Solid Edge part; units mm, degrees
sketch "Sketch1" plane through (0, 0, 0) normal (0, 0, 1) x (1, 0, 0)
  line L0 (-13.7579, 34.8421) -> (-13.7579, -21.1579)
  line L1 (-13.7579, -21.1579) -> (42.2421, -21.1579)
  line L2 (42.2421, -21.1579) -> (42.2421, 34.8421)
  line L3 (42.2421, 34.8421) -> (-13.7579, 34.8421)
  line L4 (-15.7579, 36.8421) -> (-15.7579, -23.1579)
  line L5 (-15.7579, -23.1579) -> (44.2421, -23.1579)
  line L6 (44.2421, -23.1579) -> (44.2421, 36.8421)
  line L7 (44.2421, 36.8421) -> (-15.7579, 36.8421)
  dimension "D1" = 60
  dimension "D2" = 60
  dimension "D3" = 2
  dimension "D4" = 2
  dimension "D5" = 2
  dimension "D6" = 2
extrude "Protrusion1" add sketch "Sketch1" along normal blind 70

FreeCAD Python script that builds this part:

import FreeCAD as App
import Part
import Sketcher

V = App.Vector
Q = App.Units.Quantity


def add_polygon(sketch, points):
    """Adds a closed chain of lines whose ends are joined by coincident constraints."""
    first, n = sketch.GeometryCount, len(points)
    for a, b in zip(points, points[1:] + points[:1]):
        sketch.addGeometry(Part.LineSegment(App.Vector(*a, 0), App.Vector(*b, 0)), False)
    for i in range(n):
        sketch.addConstraint(Sketcher.Constraint("Coincident", first + i, 2, first + (i + 1) % n, 1))

doc = App.newDocument("Part")
params = doc.addObject("Spreadsheet::Sheet", "Params")
for row, (alias, value) in enumerate([
    ("sketch1_width", "60 mm"),
    ("sketch1_width2", "56 mm"),
    ("pad1_length", "70 mm"),
], start=1):
    params.set(f"A{row}", alias)
    params.set(f"B{row}", "=" + value)
    params.setAlias(f"B{row}", alias)

body = doc.addObject("PartDesign::Body", "Body")

# Sketch on XY plane
sketch1 = body.newObject("Sketcher::SketchObject", "Sketch")
sketch1.AttachmentSupport = (doc.getObject("XY_Plane"), [""])
sketch1.MapMode = "FlatFace"
add_polygon(sketch1, [(44, 37), (-16, 37), (-16, -23), (44, -23)])  # lines 0-3
add_polygon(sketch1, [(-14, -21), (-14, 35), (42, 35), (42, -21)])  # lines 4-7
sketch1.addConstraint(Sketcher.Constraint("Horizontal", 0))
sketch1.addConstraint(Sketcher.Constraint("Vertical", 1))
sketch1.addConstraint(Sketcher.Constraint("Horizontal", 2))
sketch1.addConstraint(Sketcher.Constraint("Vertical", 3))
sketch1.addConstraint(Sketcher.Constraint("Vertical", 4))
sketch1.addConstraint(Sketcher.Constraint("Horizontal", 5))
sketch1.addConstraint(Sketcher.Constraint("Vertical", 6))
sketch1.addConstraint(Sketcher.Constraint("Horizontal", 7))
sketch1.addConstraint(Sketcher.Constraint("Equal", 2, 1))
sketch1.addConstraint(Sketcher.Constraint("Equal", 7, 4))
sketch1.addConstraint(Sketcher.Constraint("DistanceX", 0, 2, 0, 1, Q("60 mm")))
sketch1.addConstraint(Sketcher.Constraint("DistanceX", 5, 1, 5, 2, Q("56 mm")))
sketch1.addConstraint(Sketcher.Constraint("DistanceX", -1, 1, 2, 2, Q("44.242 mm")))
sketch1.addConstraint(Sketcher.Constraint("DistanceX", -1, 1, 5, 2, Q("42.242 mm")))
sketch1.addConstraint(Sketcher.Constraint("DistanceY", 4, 2, 0, 2, Q("2 mm")))
sketch1.addConstraint(Sketcher.Constraint("DistanceY", -1, 1, 0, 2, Q("36.842 mm")))
sketch1.setExpression("Constraints[18]", "Params.sketch1_width")
sketch1.setExpression("Constraints[19]", "Params.sketch1_width2")
pad1 = body.newObject("PartDesign::Pad", "Pad")
pad1.Profile = sketch1
pad1.setExpression("Length", "Params.pad1_length")

doc.recompute()
